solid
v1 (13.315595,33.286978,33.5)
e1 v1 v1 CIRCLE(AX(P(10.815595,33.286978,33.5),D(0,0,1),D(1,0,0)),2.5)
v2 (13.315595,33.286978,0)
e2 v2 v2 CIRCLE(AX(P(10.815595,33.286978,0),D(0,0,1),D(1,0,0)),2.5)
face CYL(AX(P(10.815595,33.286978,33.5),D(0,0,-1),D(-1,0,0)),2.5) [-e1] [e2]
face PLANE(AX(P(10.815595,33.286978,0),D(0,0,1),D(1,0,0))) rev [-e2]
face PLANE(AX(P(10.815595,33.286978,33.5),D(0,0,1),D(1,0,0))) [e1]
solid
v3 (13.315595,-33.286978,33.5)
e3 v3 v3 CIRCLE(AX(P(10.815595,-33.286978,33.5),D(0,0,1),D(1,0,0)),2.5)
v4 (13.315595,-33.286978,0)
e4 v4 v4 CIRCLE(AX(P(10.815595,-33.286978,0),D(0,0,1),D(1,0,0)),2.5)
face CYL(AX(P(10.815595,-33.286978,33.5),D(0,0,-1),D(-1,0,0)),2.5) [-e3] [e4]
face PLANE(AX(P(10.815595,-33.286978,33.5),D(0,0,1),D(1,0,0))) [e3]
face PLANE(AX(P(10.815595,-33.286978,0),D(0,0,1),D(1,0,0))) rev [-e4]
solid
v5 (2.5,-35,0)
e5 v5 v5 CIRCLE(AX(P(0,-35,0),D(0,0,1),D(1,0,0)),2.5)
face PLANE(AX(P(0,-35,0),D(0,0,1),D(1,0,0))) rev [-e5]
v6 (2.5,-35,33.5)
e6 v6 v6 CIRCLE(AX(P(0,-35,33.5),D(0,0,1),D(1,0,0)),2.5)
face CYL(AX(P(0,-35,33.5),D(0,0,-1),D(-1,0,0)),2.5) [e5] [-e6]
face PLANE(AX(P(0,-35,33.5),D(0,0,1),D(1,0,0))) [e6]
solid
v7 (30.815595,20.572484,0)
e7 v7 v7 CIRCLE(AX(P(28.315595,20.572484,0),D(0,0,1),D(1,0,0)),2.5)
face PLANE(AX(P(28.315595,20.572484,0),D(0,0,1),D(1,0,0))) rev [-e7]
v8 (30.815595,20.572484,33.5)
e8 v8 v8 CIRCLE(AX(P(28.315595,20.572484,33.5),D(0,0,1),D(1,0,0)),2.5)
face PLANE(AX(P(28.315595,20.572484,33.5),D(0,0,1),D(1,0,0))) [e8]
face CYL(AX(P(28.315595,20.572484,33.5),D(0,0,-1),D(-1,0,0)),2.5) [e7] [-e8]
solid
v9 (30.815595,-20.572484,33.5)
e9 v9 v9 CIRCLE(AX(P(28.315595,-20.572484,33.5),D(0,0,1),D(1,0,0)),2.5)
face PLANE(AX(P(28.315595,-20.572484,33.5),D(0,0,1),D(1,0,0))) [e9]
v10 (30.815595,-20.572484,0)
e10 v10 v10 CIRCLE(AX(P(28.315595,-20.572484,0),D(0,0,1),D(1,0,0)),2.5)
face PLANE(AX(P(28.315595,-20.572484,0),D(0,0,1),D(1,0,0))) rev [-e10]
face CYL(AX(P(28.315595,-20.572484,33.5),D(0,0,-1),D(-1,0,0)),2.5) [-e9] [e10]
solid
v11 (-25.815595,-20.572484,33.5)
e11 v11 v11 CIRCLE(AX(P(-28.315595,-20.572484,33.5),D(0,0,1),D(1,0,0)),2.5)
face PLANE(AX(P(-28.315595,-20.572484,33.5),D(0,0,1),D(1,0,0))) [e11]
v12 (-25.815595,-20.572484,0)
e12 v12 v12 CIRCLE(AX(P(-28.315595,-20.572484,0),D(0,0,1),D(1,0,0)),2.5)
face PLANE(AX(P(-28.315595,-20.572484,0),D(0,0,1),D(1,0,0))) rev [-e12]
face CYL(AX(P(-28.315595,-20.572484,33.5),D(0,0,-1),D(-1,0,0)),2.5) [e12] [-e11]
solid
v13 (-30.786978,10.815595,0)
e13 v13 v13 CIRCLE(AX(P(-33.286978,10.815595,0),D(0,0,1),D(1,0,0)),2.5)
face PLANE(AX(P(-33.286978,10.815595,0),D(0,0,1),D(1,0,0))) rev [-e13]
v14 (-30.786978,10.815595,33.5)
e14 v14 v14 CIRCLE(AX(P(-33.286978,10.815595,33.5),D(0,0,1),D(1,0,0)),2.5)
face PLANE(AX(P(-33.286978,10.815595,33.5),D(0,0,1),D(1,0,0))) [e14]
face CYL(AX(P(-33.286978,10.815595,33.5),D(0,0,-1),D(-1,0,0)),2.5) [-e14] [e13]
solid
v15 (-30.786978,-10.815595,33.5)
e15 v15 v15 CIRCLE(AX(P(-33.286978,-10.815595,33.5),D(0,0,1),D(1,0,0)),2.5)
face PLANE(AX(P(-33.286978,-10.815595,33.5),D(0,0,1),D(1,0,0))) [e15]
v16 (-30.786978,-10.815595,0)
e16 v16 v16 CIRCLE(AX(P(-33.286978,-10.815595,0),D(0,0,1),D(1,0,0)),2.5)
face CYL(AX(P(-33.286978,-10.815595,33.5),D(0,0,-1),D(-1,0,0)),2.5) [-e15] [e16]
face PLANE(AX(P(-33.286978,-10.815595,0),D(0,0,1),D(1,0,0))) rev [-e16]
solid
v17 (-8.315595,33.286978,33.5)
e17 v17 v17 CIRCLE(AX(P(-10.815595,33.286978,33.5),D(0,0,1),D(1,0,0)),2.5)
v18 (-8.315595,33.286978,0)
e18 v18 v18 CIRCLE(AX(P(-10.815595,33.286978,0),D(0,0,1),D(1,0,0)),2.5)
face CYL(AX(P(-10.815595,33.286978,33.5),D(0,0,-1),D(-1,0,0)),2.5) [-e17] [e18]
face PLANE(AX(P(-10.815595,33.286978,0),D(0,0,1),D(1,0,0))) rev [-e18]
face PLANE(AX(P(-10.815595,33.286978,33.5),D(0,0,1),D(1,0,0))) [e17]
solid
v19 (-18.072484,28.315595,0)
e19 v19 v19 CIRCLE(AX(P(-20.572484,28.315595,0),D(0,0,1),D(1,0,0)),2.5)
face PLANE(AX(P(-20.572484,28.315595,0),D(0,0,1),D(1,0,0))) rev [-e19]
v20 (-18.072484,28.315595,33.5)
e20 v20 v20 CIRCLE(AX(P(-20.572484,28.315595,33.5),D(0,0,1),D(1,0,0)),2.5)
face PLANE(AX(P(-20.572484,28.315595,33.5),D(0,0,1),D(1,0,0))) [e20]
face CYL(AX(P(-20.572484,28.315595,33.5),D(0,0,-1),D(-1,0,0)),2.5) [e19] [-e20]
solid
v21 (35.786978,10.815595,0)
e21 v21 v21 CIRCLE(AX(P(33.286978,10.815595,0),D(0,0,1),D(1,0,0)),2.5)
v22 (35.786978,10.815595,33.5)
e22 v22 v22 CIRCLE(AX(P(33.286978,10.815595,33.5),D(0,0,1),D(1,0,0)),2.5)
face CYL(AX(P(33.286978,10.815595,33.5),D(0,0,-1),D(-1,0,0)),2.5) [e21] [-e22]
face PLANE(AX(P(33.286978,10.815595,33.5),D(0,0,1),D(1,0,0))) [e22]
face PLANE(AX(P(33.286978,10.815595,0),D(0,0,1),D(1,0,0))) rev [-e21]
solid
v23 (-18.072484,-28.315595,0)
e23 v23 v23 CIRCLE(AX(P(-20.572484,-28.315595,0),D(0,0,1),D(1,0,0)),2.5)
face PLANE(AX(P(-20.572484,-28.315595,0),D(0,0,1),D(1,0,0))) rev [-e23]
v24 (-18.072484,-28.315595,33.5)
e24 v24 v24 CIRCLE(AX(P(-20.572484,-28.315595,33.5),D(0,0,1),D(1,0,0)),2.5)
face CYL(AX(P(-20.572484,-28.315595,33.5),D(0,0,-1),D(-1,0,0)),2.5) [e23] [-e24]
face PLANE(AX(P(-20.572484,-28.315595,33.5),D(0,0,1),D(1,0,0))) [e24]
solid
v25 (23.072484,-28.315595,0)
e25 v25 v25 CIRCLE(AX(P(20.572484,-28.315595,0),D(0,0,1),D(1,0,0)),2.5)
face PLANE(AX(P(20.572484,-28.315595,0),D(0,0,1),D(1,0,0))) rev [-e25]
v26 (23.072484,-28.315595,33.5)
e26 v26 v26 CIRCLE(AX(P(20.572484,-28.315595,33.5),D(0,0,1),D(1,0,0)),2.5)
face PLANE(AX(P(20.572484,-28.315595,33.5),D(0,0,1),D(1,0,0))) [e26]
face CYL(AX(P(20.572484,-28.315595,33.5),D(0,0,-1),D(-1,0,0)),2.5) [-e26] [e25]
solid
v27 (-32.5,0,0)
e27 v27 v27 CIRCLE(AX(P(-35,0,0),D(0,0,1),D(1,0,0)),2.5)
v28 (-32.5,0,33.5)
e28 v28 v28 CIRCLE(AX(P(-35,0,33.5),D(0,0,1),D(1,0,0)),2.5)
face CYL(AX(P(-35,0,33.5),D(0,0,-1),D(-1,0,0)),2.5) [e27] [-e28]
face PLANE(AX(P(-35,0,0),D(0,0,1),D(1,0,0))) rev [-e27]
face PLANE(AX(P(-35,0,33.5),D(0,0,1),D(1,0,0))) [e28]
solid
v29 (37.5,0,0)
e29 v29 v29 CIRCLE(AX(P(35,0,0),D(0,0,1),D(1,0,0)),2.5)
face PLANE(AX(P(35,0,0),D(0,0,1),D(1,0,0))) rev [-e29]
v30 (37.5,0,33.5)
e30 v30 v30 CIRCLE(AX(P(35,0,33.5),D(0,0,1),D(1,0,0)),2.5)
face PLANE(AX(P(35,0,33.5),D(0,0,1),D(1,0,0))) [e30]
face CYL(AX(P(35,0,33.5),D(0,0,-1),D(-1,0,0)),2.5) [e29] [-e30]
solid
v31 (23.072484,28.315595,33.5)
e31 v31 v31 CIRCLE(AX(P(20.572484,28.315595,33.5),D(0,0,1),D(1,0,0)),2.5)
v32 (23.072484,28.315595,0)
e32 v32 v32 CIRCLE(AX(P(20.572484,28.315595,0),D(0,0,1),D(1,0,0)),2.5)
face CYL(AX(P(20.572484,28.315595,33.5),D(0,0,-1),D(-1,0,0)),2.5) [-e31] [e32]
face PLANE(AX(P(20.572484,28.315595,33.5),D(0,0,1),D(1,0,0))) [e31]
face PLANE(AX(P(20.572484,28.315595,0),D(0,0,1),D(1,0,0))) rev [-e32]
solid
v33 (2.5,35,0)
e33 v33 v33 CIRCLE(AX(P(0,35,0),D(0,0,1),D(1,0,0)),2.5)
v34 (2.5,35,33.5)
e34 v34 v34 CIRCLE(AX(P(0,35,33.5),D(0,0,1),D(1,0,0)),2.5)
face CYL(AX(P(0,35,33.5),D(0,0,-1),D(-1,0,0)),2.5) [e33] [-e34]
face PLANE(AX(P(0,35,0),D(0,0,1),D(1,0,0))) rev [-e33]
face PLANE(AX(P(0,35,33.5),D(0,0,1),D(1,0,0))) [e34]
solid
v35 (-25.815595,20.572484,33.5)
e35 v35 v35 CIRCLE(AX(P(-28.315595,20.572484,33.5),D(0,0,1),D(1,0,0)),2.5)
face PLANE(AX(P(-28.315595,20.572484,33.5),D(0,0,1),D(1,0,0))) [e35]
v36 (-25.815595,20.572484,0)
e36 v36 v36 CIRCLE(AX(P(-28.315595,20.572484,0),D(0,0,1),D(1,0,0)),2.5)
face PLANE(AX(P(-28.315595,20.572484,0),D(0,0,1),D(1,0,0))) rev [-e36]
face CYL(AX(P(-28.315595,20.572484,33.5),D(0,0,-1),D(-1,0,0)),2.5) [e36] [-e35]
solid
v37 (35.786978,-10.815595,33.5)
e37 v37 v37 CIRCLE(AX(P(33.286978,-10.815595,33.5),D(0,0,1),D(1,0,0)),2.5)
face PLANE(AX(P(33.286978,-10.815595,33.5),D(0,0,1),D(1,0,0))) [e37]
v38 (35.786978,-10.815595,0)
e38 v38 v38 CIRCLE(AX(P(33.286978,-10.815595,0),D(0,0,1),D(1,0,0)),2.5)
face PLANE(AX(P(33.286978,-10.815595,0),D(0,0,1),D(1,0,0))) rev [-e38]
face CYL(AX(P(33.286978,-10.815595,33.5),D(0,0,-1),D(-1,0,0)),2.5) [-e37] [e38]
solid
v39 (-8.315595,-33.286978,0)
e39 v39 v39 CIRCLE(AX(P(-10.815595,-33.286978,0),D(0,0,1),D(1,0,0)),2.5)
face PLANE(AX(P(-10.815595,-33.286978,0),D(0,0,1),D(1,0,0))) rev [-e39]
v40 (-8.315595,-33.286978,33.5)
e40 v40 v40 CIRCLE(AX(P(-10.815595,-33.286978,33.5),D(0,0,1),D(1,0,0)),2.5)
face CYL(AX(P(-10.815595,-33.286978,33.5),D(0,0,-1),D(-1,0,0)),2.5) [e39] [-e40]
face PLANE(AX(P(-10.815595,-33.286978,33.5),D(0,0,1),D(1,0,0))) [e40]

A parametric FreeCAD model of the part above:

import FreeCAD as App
import Part
import Sketcher

doc = App.newDocument("Part")
body = doc.addObject("PartDesign::Body", "Body")

sketch1 = body.newObject("Sketcher::SketchObject", "Sketch")
sketch1.AttachmentSupport = (doc.getObject("XY_Plane"), [""])
sketch1.MapMode = "FlatFace"
sketch1.addGeometry(Part.Circle(App.Vector(0, 35, 0), App.Vector(0, 0, 1), 2.5), False)
sketch1.addConstraint(Sketcher.Constraint("PointOnObject", 0, 3, -2))
sketch1.addConstraint(Sketcher.Constraint("Diameter", 0, 5.0))
sketch1.addConstraint(Sketcher.Constraint("DistanceY", -1, 1, 0, 3, 35.0))
pad1 = body.newObject("PartDesign::Pad", "Pad")
pad1.Profile = sketch1
pad1.Length = 33.5
body2 = doc.addObject("PartDesign::Body", "Body001")

sketch2 = body2.newObject("Sketcher::SketchObject", "Sketch001")
sketch2.AttachmentSupport = (doc.getObject("XY_Plane001"), [""])
sketch2.MapMode = "FlatFace"
sketch2.addGeometry(Part.Circle(App.Vector(10.815595, 33.286978, 0), App.Vector(0, 0, 1), 2.5), False)
sketch2.addConstraint(Sketcher.Constraint("Diameter", 0, 5.0))
sketch2.addConstraint(Sketcher.Constraint("DistanceY", -1, 1, 0, 3, 33.286978))
sketch2.addConstraint(Sketcher.Constraint("DistanceX", -1, 1, 0, 3, 10.815595))
pad2 = body2.newObject("PartDesign::Pad", "Pad001")
pad2.Profile = sketch2
pad2.Length = 33.5
body3 = doc.addObject("PartDesign::Body", "Body002")

sketch3 = body3.newObject("Sketcher::SketchObject", "Sketch002")
sketch3.AttachmentSupport = (doc.getObject("XY_Plane002"), [""])
sketch3.MapMode = "FlatFace"
sketch3.addGeometry(Part.Circle(App.Vector(20.572484, 28.315595, 0), App.Vector(0, 0, 1), 2.5), False)
sketch3.addConstraint(Sketcher.Constraint("Diameter", 0, 5.0))
sketch3.addConstraint(Sketcher.Constraint("DistanceX", -1, 1, 0, 3, 20.572484))
sketch3.addConstraint(Sketcher.Constraint("DistanceY", -1, 1, 0, 3, 28.315595))
pad3 = body3.newObject("PartDesign::Pad", "Pad002")
pad3.Profile = sketch3
pad3.Length = 33.5
body4 = doc.addObject("PartDesign::Body", "Body003")

sketch4 = body4.newObject("Sketcher::SketchObject", "Sketch003")
sketch4.AttachmentSupport = (doc.getObject("XY_Plane003"), [""])
sketch4.MapMode = "FlatFace"
sketch4.addGeometry(Part.Circle(App.Vector(28.315595, 20.572484, 0), App.Vector(0, 0, 1), 2.5), False)
sketch4.addConstraint(Sketcher.Constraint("Diameter", 0, 5.0))
sketch4.addConstraint(Sketcher.Constraint("DistanceX", -1, 1, 0, 3, 28.315595))
sketch4.addConstraint(Sketcher.Constraint("DistanceY", -1, 1, 0, 3, 20.572484))
pad4 = body4.newObject("PartDesign::Pad", "Pad003")
pad4.Profile = sketch4
pad4.Length = 33.5
body5 = doc.addObject("PartDesign::Body", "Body004")

sketch5 = body5.newObject("Sketcher::SketchObject", "Sketch004")
sketch5.AttachmentSupport = (doc.getObject("XY_Plane004"), [""])
sketch5.MapMode = "FlatFace"
sketch5.addGeometry(Part.Circle(App.Vector(33.286978, 10.815595, 0), App.Vector(0, 0, 1), 2.5), False)
sketch5.addConstraint(Sketcher.Constraint("Diameter", 0, 5.0))
sketch5.addConstraint(Sketcher.Constraint("DistanceX", -1, 1, 0, 3, 33.286978))
sketch5.addConstraint(Sketcher.Constraint("DistanceY", -1, 1, 0, 3, 10.815595))
pad5 = body5.newObject("PartDesign::Pad", "Pad004")
pad5.Profile = sketch5
pad5.Length = 33.5
body6 = doc.addObject("PartDesign::Body", "Body005")

sketch6 = body6.newObject("Sketcher::SketchObject", "Sketch005")
sketch6.AttachmentSupport = (doc.getObject("XY_Plane005"), [""])
sketch6.MapMode = "FlatFace"
sketch6.addGeometry(Part.Circle(App.Vector(35, 0, 0), App.Vector(0, 0, 1), 2.5), False)
sketch6.addConstraint(Sketcher.Constraint("PointOnObject", 0, 3, -1))
sketch6.addConstraint(Sketcher.Constraint("Diameter", 0, 5.0))
sketch6.addConstraint(Sketcher.Constraint("DistanceX", -1, 1, 0, 3, 35.0))
pad6 = body6.newObject("PartDesign::Pad", "Pad005")
pad6.Profile = sketch6
pad6.Length = 33.5
body7 = doc.addObject("PartDesign::Body", "Body006")

sketch7 = body7.newObject("Sketcher::SketchObject", "Sketch006")
sketch7.AttachmentSupport = (doc.getObject("XY_Plane006"), [""])
sketch7.MapMode = "FlatFace"
sketch7.addGeometry(Part.Circle(App.Vector(33.286978, -10.815595, 0), App.Vector(0, 0, 1), 2.5), False)
sketch7.addConstraint(Sketcher.Constraint("Diameter", 0, 5.0))
sketch7.addConstraint(Sketcher.Constraint("DistanceX", -1, 1, 0, 3, 33.286978))
sketch7.addConstraint(Sketcher.Constraint("DistanceY", 0, 3, -1, 1, 10.815595))
pad7 = body7.newObject("PartDesign::Pad", "Pad006")
pad7.Profile = sketch7
pad7.Length = 33.5
body8 = doc.addObject("PartDesign::Body", "Body007")

sketch8 = body8.newObject("Sketcher::SketchObject", "Sketch007")
sketch8.AttachmentSupport = (doc.getObject("XY_Plane007"), [""])
sketch8.MapMode = "FlatFace"
sketch8.addGeometry(Part.Circle(App.Vector(28.315595, -20.572484, 0), App.Vector(0, 0, 1), 2.5), False)
sketch8.addConstraint(Sketcher.Constraint("Diameter", 0, 5.0))
sketch8.addConstraint(Sketcher.Constraint("DistanceX", -1, 1, 0, 3, 28.315595))
sketch8.addConstraint(Sketcher.Constraint("DistanceY", 0, 3, -1, 1, 20.572484))
pad8 = body8.newObject("PartDesign::Pad", "Pad007")
pad8.Profile = sketch8
pad8.Length = 33.5
body9 = doc.addObject("PartDesign::Body", "Body008")

sketch9 = body9.newObject("Sketcher::SketchObject", "Sketch008")
sketch9.AttachmentSupport = (doc.getObject("XY_Plane008"), [""])
sketch9.MapMode = "FlatFace"
sketch9.addGeometry(Part.Circle(App.Vector(20.572484, -28.315595, 0), App.Vector(0, 0, 1), 2.5), False)
sketch9.addConstraint(Sketcher.Constraint("Diameter", 0, 5.0))
sketch9.addConstraint(Sketcher.Constraint("DistanceX", -1, 1, 0, 3, 20.572484))
sketch9.addConstraint(Sketcher.Constraint("DistanceY", 0, 3, -1, 1, 28.315595))
pad9 = body9.newObject("PartDesign::Pad", "Pad008")
pad9.Profile = sketch9
pad9.Length = 33.5
body10 = doc.addObject("PartDesign::Body", "Body009")

sketch10 = body10.newObject("Sketcher::SketchObject", "Sketch009")
sketch10.AttachmentSupport = (doc.getObject("XY_Plane009"), [""])
sketch10.MapMode = "FlatFace"
sketch10.addGeometry(Part.Circle(App.Vector(10.815595, -33.286978, 0), App.Vector(0, 0, 1), 2.5), False)
sketch10.addConstraint(Sketcher.Constraint("Diameter", 0, 5.0))
sketch10.addConstraint(Sketcher.Constraint("DistanceY", 0, 3, -1, 1, 33.286978))
sketch10.addConstraint(Sketcher.Constraint("DistanceX", -1, 1, 0, 3, 10.815595))
pad10 = body10.newObject("PartDesign::Pad", "Pad009")
pad10.Profile = sketch10
pad10.Length = 33.5
body11 = doc.addObject("PartDesign::Body", "Body010")

sketch11 = body11.newObject("Sketcher::SketchObject", "Sketch010")
sketch11.AttachmentSupport = (doc.getObject("XY_Plane010"), [""])
sketch11.MapMode = "FlatFace"
sketch11.addGeometry(Part.Circle(App.Vector(0, -35, 0), App.Vector(0, 0, 1), 2.5), False)
sketch11.addConstraint(Sketcher.Constraint("PointOnObject", 0, 3, -2))
sketch11.addConstraint(Sketcher.Constraint("Diameter", 0, 5.0))
sketch11.addConstraint(Sketcher.Constraint("DistanceY", 0, 3, -1, 1, 35.0))
pad11 = body11.newObject("PartDesign::Pad", "Pad010")
pad11.Profile = sketch11
pad11.Length = 33.5
body12 = doc.addObject("PartDesign::Body", "Body011")

sketch12 = body12.newObject("Sketcher::SketchObject", "Sketch011")
sketch12.AttachmentSupport = (doc.getObject("XY_Plane011"), [""])
sketch12.MapMode = "FlatFace"
sketch12.addGeometry(Part.Circle(App.Vector(-10.815595, -33.286978, 0), App.Vector(0, 0, 1), 2.5), False)
sketch12.addConstraint(Sketcher.Constraint("Diameter", 0, 5.0))
sketch12.addConstraint(Sketcher.Constraint("DistanceY", 0, 3, -1, 1, 33.286978))
sketch12.addConstraint(Sketcher.Constraint("DistanceX", 0, 3, -1, 1, 10.815595))
pad12 = body12.newObject("PartDesign::Pad", "Pad011")
pad12.Profile = sketch12
pad12.Length = 33.5
body13 = doc.addObject("PartDesign::Body", "Body012")

sketch13 = body13.newObject("Sketcher::SketchObject", "Sketch012")
sketch13.AttachmentSupport = (doc.getObject("XY_Plane012"), [""])
sketch13.MapMode = "FlatFace"
sketch13.addGeometry(Part.Circle(App.Vector(-20.572484, -28.315595, 0), App.Vector(0, 0, 1), 2.5), False)
sketch13.addConstraint(Sketcher.Constraint("Diameter", 0, 5.0))
sketch13.addConstraint(Sketcher.Constraint("DistanceX", 0, 3, -1, 1, 20.572484))
sketch13.addConstraint(Sketcher.Constraint("DistanceY", 0, 3, -1, 1, 28.315595))
pad13 = body13.newObject("PartDesign::Pad", "Pad012")
pad13.Profile = sketch13
pad13.Length = 33.5
body14 = doc.addObject("PartDesign::Body", "Body013")

sketch14 = body14.newObject("Sketcher::SketchObject", "Sketch013")
sketch14.AttachmentSupport = (doc.getObject("XY_Plane013"), [""])
sketch14.MapMode = "FlatFace"
sketch14.addGeometry(Part.Circle(App.Vector(-28.315595, -20.572484, 0), App.Vector(0, 0, 1), 2.5), False)
sketch14.addConstraint(Sketcher.Constraint("Diameter", 0, 5.0))
sketch14.addConstraint(Sketcher.Constraint("DistanceX", 0, 3, -1, 1, 28.315595))
sketch14.addConstraint(Sketcher.Constraint("DistanceY", 0, 3, -1, 1, 20.572484))
pad14 = body14.newObject("PartDesign::Pad", "Pad013")
pad14.Profile = sketch14
pad14.Length = 33.5
body15 = doc.addObject("PartDesign::Body", "Body014")

sketch15 = body15.newObject("Sketcher::SketchObject", "Sketch014")
sketch15.AttachmentSupport = (doc.getObject("XY_Plane014"), [""])
sketch15.MapMode = "FlatFace"
sketch15.addGeometry(Part.Circle(App.Vector(-33.286978, -10.815595, 0), App.Vector(0, 0, 1), 2.5), False)
sketch15.addConstraint(Sketcher.Constraint("Diameter", 0, 5.0))
sketch15.addConstraint(Sketcher.Constraint("DistanceX", 0, 3, -1, 1, 33.286978))
sketch15.addConstraint(Sketcher.Constraint("DistanceY", 0, 3, -1, 1, 10.815595))
pad15 = body15.newObject("PartDesign::Pad", "Pad014")
pad15.Profile = sketch15
pad15.Length = 33.5
body16 = doc.addObject("PartDesign::Body", "Body015")

sketch16 = body16.newObject("Sketcher::SketchObject", "Sketch015")
sketch16.AttachmentSupport = (doc.getObject("XY_Plane015"), [""])
sketch16.MapMode = "FlatFace"
sketch16.addGeometry(Part.Circle(App.Vector(-35, 0, 0), App.Vector(0, 0, 1), 2.5), False)
sketch16.addConstraint(Sketcher.Constraint("PointOnObject", 0, 3, -1))
sketch16.addConstraint(Sketcher.Constraint("Diameter", 0, 5.0))
sketch16.addConstraint(Sketcher.Constraint("DistanceX", 0, 3, -1, 1, 35.0))
pad16 = body16.newObject("PartDesign::Pad", "Pad015")
pad16.Profile = sketch16
pad16.Length = 33.5
body17 = doc.addObject("PartDesign::Body", "Body016")

sketch17 = body17.newObject("Sketcher::SketchObject", "Sketch016")
sketch17.AttachmentSupport = (doc.getObject("XY_Plane016"), [""])
sketch17.MapMode = "FlatFace"
sketch17.addGeometry(Part.Circle(App.Vector(-33.286978, 10.815595, 0), App.Vector(0, 0, 1), 2.5), False)
sketch17.addConstraint(Sketcher.Constraint("Diameter", 0, 5.0))
sketch17.addConstraint(Sketcher.Constraint("DistanceX", 0, 3, -1, 1, 33.286978))
sketch17.addConstraint(Sketcher.Constraint("DistanceY", -1, 1, 0, 3, 10.815595))
pad17 = body17.newObject("PartDesign::Pad", "Pad016")
pad17.Profile = sketch17
pad17.Length = 33.5
body18 = doc.addObject("PartDesign::Body", "Body017")

sketch18 = body18.newObject("Sketcher::SketchObject", "Sketch017")
sketch18.AttachmentSupport = (doc.getObject("XY_Plane017"), [""])
sketch18.MapMode = "FlatFace"
sketch18.addGeometry(Part.Circle(App.Vector(-28.315595, 20.572484, 0), App.Vector(0, 0, 1), 2.5), False)
sketch18.addConstraint(Sketcher.Constraint("Diameter", 0, 5.0))
sketch18.addConstraint(Sketcher.Constraint("DistanceX", 0, 3, -1, 1, 28.315595))
sketch18.addConstraint(Sketcher.Constraint("DistanceY", -1, 1, 0, 3, 20.572484))
pad18 = body18.newObject("PartDesign::Pad", "Pad017")
pad18.Profile = sketch18
pad18.Length = 33.5
body19 = doc.addObject("PartDesign::Body", "Body018")

sketch19 = body19.newObject("Sketcher::SketchObject", "Sketch018")
sketch19.AttachmentSupport = (doc.getObject("XY_Plane018"), [""])
sketch19.MapMode = "FlatFace"
sketch19.addGeometry(Part.Circle(App.Vector(-20.572484, 28.315595, 0), App.Vector(0, 0, 1), 2.5), False)
sketch19.addConstraint(Sketcher.Constraint("Diameter", 0, 5.0))
sketch19.addConstraint(Sketcher.Constraint("DistanceX", 0, 3, -1, 1, 20.572484))
sketch19.addConstraint(Sketcher.Constraint("DistanceY", -1, 1, 0, 3, 28.315595))
pad19 = body19.newObject("PartDesign::Pad", "Pad018")
pad19.Profile = sketch19
pad19.Length = 33.5
body20 = doc.addObject("PartDesign::Body", "Body019")

sketch20 = body20.newObject("Sketcher::SketchObject", "Sketch019")
sketch20.AttachmentSupport = (doc.getObject("XY_Plane019"), [""])
sketch20.MapMode = "FlatFace"
sketch20.addGeometry(Part.Circle(App.Vector(-10.815595, 33.286978, 0), App.Vector(0, 0, 1), 2.5), False)
sketch20.addConstraint(Sketcher.Constraint("Diameter", 0, 5.0))
sketch20.addConstraint(Sketcher.Constraint("DistanceY", -1, 1, 0, 3, 33.286978))
sketch20.addConstraint(Sketcher.Constraint("DistanceX", 0, 3, -1, 1, 10.815595))
pad20 = body20.newObject("PartDesign::Pad", "Pad019")
pad20.Profile = sketch20
pad20.Length = 33.5

doc.recompute()
